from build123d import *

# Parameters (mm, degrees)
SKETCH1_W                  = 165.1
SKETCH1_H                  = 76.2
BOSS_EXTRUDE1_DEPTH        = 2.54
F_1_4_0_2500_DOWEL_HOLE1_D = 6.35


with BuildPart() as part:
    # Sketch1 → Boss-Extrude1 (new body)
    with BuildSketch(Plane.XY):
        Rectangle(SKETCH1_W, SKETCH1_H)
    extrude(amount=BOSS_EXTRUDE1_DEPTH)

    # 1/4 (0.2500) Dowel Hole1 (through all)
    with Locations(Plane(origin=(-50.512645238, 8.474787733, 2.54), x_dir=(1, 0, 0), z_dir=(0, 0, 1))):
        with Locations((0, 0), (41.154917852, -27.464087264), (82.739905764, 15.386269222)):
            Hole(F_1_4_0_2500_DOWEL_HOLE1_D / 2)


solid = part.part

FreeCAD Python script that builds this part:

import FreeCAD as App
import Part
import Sketcher
from FreeCAD import Vector
Q = App.Units.Quantity

doc = App.newDocument("Part")
body = doc.addObject("PartDesign::Body", "Body")

# Sketch on XY plane
sketch1 = body.newObject("Sketcher::SketchObject", "Sketch")
sketch1.AttachmentSupport = (doc.getObject("XY_Plane"), [""])
sketch1.MapMode = "FlatFace"
sketch1.addGeometry([
    Part.LineSegment(Vector(-83, 38, 0), Vector(-83, -38, 0)),
    Part.LineSegment(Vector(-83, -38, 0), Vector(83, -38, 0)),
    Part.LineSegment(Vector(83, -38, 0), Vector(83, 38, 0)),
    Part.LineSegment(Vector(83, 38, 0), Vector(-83, 38, 0)),
], False)
sketch1.addConstraint([
    Sketcher.Constraint("Coincident", 0, 2, 1, 1),
    Sketcher.Constraint("Coincident", 1, 2, 2, 1),
    Sketcher.Constraint("Coincident", 2, 2, 3, 1),
    Sketcher.Constraint("Coincident", 3, 2, 0, 1),
    Sketcher.Constraint("Vertical", 0),
    Sketcher.Constraint("Horizontal", 1),
    Sketcher.Constraint("Vertical", 2),
    Sketcher.Constraint("Horizontal", 3),
    Sketcher.Constraint("Symmetric", 0, 2, 2, 2, -1, 1),
    Sketcher.Constraint("DistanceY", 0, 2, 0, 1, Q("3 in")),
    Sketcher.Constraint("DistanceX", 1, 1, 1, 2, Q("6.5 in")),
])
pad1 = body.newObject("PartDesign::Pad", "Pad")
pad1.Profile = sketch1
pad1.Length = Q("0.1 in")

# Sketch on XY plane
sketch2 = body.newObject("Sketcher::SketchObject", "Sketch001")
sketch2.AttachmentSupport = (doc.getObject("XY_Plane"), [""])
sketch2.MapMode = "FlatFace"
sketch2.AttachmentOffset = App.Placement(Vector(0, 0, 0.1 * 25.4), App.Rotation())
sketch2.addGeometry([
    Part.Circle(Vector(-50.5, 8.5, 0), Vector(0, 0, 1), 3.2),
    Part.Circle(Vector(-9.4, -19, 0), Vector(0, 0, 1), 3.2),
    Part.Circle(Vector(32.2, 23.9, 0), Vector(0, 0, 1), 3.2),
], False)
sketch2.addConstraint([
    Sketcher.Constraint("Equal", 0, 1),
    Sketcher.Constraint("Equal", 1, 2),
    Sketcher.Constraint("Diameter", 0, Q("0.25 in")),
    Sketcher.Constraint("DistanceY", 1, 3, -1, 1, Q("18.9893 mm")),
    Sketcher.Constraint("DistanceX", -1, 1, 2, 3, Q("32.227261 mm")),
    Sketcher.Constraint("DistanceY", 0, 3, 2, 3, Q("15.386269 mm")),
    Sketcher.Constraint("DistanceX", 0, 3, -1, 1, Q("50.512645 mm")),
    Sketcher.Constraint("DistanceY", -1, 1, 0, 3, Q("8.474788 mm")),
    Sketcher.Constraint("DistanceX", 1, 3, -1, 1, Q("9.357727 mm")),
])
doc.recompute()
hole = body.newObject("PartDesign::Hole", "Hole")
hole.Profile = sketch2
hole.ThreadType = "None"
hole.Diameter = Q("0.25 in")
hole.DepthType = "ThroughAll"

doc.recompute()
